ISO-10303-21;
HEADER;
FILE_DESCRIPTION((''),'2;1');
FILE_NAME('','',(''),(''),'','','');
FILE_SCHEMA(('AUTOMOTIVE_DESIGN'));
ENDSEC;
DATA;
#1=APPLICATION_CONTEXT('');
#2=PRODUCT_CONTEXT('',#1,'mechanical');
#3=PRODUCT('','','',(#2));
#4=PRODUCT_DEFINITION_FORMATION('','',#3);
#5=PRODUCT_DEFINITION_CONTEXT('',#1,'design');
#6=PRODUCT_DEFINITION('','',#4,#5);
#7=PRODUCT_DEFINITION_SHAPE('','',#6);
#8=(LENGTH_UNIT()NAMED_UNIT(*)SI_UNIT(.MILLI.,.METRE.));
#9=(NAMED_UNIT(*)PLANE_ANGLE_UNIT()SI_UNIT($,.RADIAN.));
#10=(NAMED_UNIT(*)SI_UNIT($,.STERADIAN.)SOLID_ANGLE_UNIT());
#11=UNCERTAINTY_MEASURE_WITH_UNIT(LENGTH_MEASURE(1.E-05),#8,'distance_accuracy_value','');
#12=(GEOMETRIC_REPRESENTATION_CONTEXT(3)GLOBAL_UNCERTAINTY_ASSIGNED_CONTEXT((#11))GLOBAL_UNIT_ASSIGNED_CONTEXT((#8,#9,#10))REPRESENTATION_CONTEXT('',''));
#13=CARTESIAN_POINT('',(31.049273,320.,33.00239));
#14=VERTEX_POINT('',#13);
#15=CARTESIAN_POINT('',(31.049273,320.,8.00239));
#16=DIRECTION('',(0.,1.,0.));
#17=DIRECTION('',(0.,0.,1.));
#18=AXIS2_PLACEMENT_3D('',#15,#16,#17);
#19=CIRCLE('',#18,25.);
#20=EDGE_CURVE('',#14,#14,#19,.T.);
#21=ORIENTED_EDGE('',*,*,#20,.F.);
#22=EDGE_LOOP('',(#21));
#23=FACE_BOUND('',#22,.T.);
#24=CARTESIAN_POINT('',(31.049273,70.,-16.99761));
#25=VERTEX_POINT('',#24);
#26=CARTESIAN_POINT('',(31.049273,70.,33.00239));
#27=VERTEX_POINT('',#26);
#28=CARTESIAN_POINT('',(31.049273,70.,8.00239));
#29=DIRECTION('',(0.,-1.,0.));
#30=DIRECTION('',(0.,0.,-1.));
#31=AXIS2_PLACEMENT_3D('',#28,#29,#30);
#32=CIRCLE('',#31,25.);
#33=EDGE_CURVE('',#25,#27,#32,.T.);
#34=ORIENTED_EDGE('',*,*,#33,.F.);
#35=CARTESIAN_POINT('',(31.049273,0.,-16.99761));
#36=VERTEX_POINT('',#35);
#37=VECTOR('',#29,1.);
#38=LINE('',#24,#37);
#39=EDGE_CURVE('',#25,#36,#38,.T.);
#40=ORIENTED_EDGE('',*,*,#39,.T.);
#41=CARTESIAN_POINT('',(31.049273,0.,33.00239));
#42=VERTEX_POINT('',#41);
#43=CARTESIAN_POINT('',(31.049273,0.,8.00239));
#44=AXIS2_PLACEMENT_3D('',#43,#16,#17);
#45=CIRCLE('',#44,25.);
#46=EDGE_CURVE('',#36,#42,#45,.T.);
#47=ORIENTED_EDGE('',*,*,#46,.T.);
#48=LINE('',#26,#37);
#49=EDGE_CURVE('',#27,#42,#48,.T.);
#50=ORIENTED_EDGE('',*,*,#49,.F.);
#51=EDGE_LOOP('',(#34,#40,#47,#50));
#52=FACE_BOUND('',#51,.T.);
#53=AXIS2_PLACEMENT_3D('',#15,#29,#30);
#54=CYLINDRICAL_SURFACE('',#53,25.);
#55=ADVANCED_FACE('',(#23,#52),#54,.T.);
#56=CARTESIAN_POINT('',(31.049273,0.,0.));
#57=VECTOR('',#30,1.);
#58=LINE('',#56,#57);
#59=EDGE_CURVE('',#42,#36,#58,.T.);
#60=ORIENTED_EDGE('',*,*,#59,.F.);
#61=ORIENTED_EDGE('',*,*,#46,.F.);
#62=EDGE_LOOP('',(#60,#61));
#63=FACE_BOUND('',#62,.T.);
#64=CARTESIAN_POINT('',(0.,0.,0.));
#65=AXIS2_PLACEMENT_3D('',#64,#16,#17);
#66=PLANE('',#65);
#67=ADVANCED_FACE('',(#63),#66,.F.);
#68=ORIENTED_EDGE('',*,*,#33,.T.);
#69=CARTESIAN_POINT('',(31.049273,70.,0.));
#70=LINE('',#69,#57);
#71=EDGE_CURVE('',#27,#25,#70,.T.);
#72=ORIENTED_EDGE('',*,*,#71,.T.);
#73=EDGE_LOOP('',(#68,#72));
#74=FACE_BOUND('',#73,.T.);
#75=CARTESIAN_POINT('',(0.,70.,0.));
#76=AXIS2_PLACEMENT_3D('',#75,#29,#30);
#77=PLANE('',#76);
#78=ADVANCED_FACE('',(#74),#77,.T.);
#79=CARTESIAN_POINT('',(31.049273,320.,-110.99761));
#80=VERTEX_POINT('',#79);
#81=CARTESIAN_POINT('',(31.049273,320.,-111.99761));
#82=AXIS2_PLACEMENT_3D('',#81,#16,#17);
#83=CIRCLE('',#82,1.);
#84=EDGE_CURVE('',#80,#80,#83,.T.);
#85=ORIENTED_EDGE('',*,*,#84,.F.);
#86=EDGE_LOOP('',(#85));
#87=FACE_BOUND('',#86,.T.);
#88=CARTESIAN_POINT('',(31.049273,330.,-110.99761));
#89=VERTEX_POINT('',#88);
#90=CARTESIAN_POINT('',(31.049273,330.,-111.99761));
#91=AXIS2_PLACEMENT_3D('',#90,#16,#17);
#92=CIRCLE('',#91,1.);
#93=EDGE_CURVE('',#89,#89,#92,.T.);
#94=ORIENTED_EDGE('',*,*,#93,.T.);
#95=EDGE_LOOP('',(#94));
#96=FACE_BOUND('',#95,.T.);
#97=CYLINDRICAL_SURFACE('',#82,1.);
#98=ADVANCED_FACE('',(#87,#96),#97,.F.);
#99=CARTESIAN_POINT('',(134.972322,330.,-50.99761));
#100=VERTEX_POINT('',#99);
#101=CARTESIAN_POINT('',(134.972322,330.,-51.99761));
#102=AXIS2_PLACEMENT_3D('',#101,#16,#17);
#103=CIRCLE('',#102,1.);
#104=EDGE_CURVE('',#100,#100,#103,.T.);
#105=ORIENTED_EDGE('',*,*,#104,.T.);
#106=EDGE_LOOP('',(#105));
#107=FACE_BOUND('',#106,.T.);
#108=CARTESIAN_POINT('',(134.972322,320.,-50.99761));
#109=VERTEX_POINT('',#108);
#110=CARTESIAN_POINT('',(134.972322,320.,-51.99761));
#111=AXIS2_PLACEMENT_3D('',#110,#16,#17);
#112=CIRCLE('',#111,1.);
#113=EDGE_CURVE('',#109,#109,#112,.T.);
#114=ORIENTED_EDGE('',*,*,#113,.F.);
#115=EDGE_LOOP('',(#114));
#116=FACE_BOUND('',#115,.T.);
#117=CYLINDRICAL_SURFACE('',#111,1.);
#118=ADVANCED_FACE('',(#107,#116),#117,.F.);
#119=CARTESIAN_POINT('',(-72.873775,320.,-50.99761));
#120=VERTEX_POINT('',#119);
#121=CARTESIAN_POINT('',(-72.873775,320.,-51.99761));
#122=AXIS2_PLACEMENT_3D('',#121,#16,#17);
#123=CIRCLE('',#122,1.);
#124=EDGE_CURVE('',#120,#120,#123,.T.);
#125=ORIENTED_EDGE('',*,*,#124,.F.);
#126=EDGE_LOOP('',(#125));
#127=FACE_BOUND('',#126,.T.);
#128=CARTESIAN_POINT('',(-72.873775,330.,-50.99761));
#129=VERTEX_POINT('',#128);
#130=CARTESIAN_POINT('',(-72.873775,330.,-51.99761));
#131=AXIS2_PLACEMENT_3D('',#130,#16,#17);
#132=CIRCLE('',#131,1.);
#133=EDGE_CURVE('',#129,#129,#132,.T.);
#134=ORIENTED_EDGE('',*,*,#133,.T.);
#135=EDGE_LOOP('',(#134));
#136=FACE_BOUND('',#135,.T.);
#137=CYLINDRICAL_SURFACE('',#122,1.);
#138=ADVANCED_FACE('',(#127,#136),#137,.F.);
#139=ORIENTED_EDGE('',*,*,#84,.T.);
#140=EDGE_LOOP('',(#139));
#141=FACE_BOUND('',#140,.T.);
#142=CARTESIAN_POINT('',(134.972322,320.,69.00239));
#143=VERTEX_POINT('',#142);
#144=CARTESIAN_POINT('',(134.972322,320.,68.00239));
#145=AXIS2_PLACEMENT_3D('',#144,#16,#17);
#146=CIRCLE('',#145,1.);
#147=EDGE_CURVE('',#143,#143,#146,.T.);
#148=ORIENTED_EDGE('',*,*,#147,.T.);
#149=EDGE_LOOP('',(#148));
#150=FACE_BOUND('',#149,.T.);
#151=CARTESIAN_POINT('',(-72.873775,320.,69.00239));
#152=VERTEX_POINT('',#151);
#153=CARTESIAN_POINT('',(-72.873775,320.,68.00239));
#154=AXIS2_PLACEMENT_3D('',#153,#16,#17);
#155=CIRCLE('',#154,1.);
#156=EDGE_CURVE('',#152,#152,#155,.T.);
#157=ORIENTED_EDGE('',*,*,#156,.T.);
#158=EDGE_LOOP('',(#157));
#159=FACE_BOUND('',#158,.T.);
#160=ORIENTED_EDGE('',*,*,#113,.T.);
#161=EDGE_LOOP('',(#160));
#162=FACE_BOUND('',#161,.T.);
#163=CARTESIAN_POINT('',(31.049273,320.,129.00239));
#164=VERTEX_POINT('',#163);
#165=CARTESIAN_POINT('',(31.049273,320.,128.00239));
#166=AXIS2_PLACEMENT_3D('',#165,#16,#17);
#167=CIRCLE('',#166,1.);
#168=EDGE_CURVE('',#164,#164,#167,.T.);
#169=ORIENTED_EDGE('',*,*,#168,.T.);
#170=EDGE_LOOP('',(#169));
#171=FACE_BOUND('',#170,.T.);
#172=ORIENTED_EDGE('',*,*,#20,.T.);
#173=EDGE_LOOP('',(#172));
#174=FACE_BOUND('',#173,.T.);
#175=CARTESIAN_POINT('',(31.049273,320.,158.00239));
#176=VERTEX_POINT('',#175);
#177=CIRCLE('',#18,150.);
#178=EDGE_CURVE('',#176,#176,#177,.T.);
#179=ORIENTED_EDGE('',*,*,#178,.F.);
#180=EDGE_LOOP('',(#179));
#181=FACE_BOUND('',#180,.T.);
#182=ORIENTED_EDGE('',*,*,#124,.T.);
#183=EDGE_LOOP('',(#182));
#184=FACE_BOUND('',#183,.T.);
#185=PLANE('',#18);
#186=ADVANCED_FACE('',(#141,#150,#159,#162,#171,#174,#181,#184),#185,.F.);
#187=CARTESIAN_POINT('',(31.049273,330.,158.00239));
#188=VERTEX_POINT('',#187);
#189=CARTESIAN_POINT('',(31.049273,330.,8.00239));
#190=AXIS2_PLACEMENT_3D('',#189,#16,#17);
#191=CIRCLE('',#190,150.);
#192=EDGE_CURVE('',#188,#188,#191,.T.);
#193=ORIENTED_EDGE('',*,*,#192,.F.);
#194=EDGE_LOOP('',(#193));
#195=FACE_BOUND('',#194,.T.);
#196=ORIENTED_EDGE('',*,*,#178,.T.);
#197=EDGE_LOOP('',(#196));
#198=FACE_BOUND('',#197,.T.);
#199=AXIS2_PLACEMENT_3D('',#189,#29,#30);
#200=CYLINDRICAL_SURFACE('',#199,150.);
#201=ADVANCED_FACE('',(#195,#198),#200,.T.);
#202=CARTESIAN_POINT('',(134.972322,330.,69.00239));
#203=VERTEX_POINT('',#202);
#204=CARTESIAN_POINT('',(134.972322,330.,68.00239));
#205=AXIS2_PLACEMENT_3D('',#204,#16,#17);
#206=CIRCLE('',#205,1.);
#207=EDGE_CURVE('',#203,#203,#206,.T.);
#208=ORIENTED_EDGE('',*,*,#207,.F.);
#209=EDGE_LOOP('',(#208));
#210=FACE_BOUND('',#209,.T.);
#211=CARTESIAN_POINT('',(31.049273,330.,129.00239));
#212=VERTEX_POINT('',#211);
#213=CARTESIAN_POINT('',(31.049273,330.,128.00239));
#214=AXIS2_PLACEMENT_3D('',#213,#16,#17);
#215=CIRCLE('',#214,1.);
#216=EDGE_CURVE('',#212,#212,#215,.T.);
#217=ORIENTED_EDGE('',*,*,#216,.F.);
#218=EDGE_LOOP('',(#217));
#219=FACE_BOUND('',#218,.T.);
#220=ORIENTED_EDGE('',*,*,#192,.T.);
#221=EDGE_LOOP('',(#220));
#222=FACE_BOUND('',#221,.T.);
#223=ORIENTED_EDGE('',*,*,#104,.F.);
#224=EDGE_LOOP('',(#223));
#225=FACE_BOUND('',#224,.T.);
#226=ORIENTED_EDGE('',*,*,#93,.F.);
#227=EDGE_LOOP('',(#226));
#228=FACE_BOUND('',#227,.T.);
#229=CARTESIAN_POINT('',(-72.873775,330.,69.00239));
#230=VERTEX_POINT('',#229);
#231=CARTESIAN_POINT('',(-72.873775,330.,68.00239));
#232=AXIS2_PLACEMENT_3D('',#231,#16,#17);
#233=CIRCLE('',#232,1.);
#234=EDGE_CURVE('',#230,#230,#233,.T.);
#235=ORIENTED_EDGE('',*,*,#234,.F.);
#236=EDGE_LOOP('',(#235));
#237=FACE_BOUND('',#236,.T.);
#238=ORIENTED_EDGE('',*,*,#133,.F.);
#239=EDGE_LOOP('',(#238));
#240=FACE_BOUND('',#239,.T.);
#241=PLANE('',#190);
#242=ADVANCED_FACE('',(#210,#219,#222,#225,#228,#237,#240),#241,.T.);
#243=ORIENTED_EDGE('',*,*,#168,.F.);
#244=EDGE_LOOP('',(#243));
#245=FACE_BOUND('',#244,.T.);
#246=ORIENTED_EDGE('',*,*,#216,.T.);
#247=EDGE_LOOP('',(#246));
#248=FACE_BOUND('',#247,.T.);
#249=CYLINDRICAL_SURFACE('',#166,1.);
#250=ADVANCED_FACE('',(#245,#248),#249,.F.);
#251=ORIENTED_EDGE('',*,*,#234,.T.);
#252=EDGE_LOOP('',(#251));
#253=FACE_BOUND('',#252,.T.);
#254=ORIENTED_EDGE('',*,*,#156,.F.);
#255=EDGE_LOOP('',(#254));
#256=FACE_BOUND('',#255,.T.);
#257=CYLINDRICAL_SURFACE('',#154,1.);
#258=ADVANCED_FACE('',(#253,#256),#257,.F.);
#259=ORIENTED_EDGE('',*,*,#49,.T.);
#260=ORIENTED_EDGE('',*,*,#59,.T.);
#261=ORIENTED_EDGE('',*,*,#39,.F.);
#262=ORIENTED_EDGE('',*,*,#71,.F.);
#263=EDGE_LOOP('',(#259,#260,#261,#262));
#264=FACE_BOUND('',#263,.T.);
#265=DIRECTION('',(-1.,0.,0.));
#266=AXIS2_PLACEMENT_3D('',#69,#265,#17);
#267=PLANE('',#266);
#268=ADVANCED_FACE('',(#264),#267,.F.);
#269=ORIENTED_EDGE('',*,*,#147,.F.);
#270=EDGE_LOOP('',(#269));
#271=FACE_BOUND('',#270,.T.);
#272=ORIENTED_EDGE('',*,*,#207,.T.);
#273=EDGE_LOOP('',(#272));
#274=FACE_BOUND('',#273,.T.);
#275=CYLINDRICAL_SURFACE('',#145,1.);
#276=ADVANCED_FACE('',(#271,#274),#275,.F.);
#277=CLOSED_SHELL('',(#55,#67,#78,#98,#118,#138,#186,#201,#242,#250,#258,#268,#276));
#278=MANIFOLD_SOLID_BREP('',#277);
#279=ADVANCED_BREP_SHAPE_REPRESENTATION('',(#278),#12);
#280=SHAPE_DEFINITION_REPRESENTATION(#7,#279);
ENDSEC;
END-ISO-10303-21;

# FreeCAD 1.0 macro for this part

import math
import FreeCAD as App
import Part
import Sketcher

V = App.Vector
Q = App.Units.Quantity

doc = App.newDocument("Part")
params = doc.addObject("Spreadsheet::Sheet", "Params")
for row, (alias, value) in enumerate([
    ("sketch1_diameter", "50 mm"),
    ("pad1_length", "320 mm"),
    ("sketch2_radius", "25 mm"),
    ("pocket1_length", "70 mm"),
    ("sketch3_diameter", "300 mm"),
    ("pad2_length", "10 mm"),
    ("sketch4_diameter", "2 mm"),
    ("pocket2_length", "10 mm"),
], start=1):
    params.set(f"A{row}", alias)
    params.set(f"B{row}", "=" + value)
    params.setAlias(f"B{row}", alias)

body = doc.addObject("PartDesign::Body", "Body")

sketch1 = body.newObject("Sketcher::SketchObject", "Sketch")
sketch1.AttachmentSupport = (doc.getObject("XZ_Plane"), [""])
sketch1.MapMode = "FlatFace"
sketch1.addGeometry(Part.Circle(V(31, 8, 0), V(0, 0, 1), 25), False)
sketch1.addConstraint([
    Sketcher.Constraint("Diameter", 0, Q("50 mm")),
    Sketcher.Constraint("DistanceY", -1, 1, 0, 3, Q("8.00239 mm")),
    Sketcher.Constraint("DistanceX", -1, 1, 0, 3, Q("31.049273 mm")),
])
sketch1.setExpression("Constraints[0]", "Params.sketch1_diameter")
pad1 = body.newObject("PartDesign::Pad", "Pad")
pad1.Profile = sketch1
pad1.setExpression("Length", "Params.pad1_length")
pad1.Reversed = True

sketch2 = body.newObject("Sketcher::SketchObject", "Sketch001")
sketch2.AttachmentSupport = (doc.getObject("XZ_Plane"), [""])
sketch2.MapMode = "FlatFace"
sketch2.addGeometry([
    Part.LineSegment(V(31, 33, 0), V(31, -17, 0)),
    Part.ArcOfCircle(Part.Circle(V(31, 8, 0), V(0, 0, 1), 25), math.radians(-90), math.radians(90)),
], False)
sketch2.addConstraint([
    Sketcher.Constraint("Coincident", 0, 1, 1, 2),
    Sketcher.Constraint("Coincident", 1, 1, 0, 2),
    Sketcher.Constraint("Vertical", 0),
    Sketcher.Constraint("Vertical", 1, 3, 0, 1),
    Sketcher.Constraint("Radius", 1, Q("25 mm")),
    Sketcher.Constraint("DistanceY", -1, 1, 1, 3, Q("8.00239 mm")),
    Sketcher.Constraint("DistanceX", -1, 1, 1, 3, Q("31.049273 mm")),
])
sketch2.setExpression("Constraints[4]", "Params.sketch2_radius")
pocket1 = body.newObject("PartDesign::Pocket", "Pocket")
pocket1.Profile = sketch2
pocket1.setExpression("Length", "Params.pocket1_length")

sketch3 = body.newObject("Sketcher::SketchObject", "Sketch002")
sketch3.AttachmentSupport = (doc.getObject("XZ_Plane"), [""])
sketch3.MapMode = "FlatFace"
sketch3.AttachmentOffset = App.Placement(V(0, 0, -320), App.Rotation())
sketch3.addGeometry(Part.Circle(V(31, 8, 0), V(0, 0, 1), 150), False)
sketch3.addConstraint([
    Sketcher.Constraint("Diameter", 0, Q("300 mm")),
    Sketcher.Constraint("DistanceY", -1, 1, 0, 3, Q("8.00239 mm")),
    Sketcher.Constraint("DistanceX", -1, 1, 0, 3, Q("31.049273 mm")),
])
sketch3.setExpression("Constraints[0]", "Params.sketch3_diameter")
pad2 = body.newObject("PartDesign::Pad", "Pad001")
pad2.Profile = sketch3
pad2.setExpression("Length", "Params.pad2_length")
pad2.Reversed = True

sketch4 = body.newObject("Sketcher::SketchObject", "Sketch003")
sketch4.AttachmentSupport = (doc.getObject("XZ_Plane"), [""])
sketch4.MapMode = "FlatFace"
sketch4.AttachmentOffset = App.Placement(V(0, 0, -330), App.Rotation())
sketch4.addGeometry([
    Part.Circle(V(-72.9, 68, 0), V(0, 0, 1), 1),
    Part.Circle(V(-72.9, -52, 0), V(0, 0, 1), 1),
    Part.Circle(V(31, -112, 0), V(0, 0, 1), 1),
    Part.Circle(V(135, -52, 0), V(0, 0, 1), 1),
    Part.Circle(V(135, 68, 0), V(0, 0, 1), 1),
    Part.Circle(V(31, 128, 0), V(0, 0, 1), 1),
], False)
sketch4.addConstraint([
    Sketcher.Constraint("Equal", 0, 1),
    Sketcher.Constraint("Equal", 1, 2),
    Sketcher.Constraint("Equal", 2, 3),
    Sketcher.Constraint("Equal", 3, 4),
    Sketcher.Constraint("Equal", 4, 5),
    Sketcher.Constraint("Horizontal", 1, 3, 3, 3),
    Sketcher.Constraint("Horizontal", 0, 3, 4, 3),
    Sketcher.Constraint("Vertical", 0, 3, 1, 3),
    Sketcher.Constraint("Vertical", 3, 3, 4, 3),
    Sketcher.Constraint("Vertical", 2, 3, 5, 3),
    Sketcher.Constraint("Diameter", 0, Q("2 mm")),
    Sketcher.Constraint("DistanceY", 1, 3, 0, 3, Q("120 mm")),
    Sketcher.Constraint("DistanceY", 2, 3, 1, 3, Q("60 mm")),
    Sketcher.Constraint("DistanceY", 0, 3, 5, 3, Q("60 mm")),
    Sketcher.Constraint("DistanceY", -1, 1, 0, 3, Q("68.00239 mm")),
    Sketcher.Constraint("DistanceX", -1, 1, 3, 3, Q("134.972322 mm")),
    Sketcher.Constraint("DistanceX", 1, 3, 2, 3, Q("103.923048 mm")),
    Sketcher.Constraint("DistanceX", 2, 3, 3, 3, Q("103.923048 mm")),
])
sketch4.setExpression("Constraints[10]", "Params.sketch4_diameter")
pocket2 = body.newObject("PartDesign::Pocket", "Pocket001")
pocket2.Profile = sketch4
pocket2.setExpression("Length", "Params.pocket2_length")
pocket2.Reversed = True

doc.recompute()
